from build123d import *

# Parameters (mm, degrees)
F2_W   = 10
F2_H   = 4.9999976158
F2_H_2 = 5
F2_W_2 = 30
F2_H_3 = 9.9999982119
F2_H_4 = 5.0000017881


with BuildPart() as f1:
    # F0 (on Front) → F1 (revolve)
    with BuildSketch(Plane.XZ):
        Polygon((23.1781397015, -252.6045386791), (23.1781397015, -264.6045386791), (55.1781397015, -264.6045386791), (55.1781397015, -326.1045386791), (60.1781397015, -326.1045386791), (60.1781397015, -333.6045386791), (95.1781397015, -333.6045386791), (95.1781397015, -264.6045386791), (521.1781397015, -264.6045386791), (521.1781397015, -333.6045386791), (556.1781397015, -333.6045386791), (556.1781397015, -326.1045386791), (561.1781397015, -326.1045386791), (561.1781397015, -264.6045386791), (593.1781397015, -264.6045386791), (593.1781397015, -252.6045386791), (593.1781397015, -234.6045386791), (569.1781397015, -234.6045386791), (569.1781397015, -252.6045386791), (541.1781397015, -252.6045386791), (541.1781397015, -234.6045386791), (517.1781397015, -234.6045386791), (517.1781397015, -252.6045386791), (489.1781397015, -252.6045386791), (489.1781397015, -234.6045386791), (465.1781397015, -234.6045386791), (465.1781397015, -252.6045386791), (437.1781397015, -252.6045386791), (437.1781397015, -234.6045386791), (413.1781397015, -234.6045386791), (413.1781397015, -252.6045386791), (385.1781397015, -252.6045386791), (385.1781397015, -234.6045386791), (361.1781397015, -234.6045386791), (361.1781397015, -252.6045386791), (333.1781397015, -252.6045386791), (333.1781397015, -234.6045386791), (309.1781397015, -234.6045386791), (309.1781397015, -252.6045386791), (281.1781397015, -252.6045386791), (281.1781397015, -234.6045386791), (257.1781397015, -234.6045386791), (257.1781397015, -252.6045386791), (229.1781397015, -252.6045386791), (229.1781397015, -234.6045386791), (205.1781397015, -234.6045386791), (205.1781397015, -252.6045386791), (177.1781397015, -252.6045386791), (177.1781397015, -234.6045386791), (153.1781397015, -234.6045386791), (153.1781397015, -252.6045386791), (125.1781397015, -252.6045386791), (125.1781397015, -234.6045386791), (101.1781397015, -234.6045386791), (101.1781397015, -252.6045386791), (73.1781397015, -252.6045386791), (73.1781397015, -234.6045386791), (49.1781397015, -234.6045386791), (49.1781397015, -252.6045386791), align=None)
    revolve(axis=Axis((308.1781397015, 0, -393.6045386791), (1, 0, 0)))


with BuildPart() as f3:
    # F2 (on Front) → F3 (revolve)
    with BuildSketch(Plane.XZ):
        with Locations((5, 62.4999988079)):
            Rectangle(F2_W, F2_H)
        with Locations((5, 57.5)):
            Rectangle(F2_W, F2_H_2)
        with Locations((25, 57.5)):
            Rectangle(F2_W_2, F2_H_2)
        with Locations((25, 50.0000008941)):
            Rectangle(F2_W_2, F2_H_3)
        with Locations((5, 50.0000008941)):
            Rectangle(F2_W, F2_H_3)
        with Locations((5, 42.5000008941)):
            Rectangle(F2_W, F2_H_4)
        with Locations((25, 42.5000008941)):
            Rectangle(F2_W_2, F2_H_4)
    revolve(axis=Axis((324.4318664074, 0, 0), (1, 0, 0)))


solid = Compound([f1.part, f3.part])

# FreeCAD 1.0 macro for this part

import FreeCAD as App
import Part
import Sketcher

V = App.Vector

doc = App.newDocument("Part")
body = doc.addObject("PartDesign::Body", "Body")

sketch1 = body.newObject("Sketcher::SketchObject", "Sketch")
sketch1.AttachmentSupport = (doc.getObject("XZ_Plane"), [""])
sketch1.MapMode = "FlatFace"
sketch1.addGeometry(Part.LineSegment(V(23.17814, -252.604539, 0), V(23.17814, -264.604539, 0)), False)
sketch1.addGeometry(Part.LineSegment(V(23.17814, -264.604539, 0), V(55.17814, -264.604539, 0)), False)
sketch1.addGeometry(Part.LineSegment(V(55.17814, -264.604539, 0), V(55.17814, -326.104539, 0)), False)
sketch1.addGeometry(Part.LineSegment(V(55.17814, -326.104539, 0), V(60.17814, -326.104539, 0)), False)
sketch1.addGeometry(Part.LineSegment(V(60.17814, -326.104539, 0), V(60.17814, -333.604539, 0)), False)
sketch1.addGeometry(Part.LineSegment(V(60.17814, -333.604539, 0), V(95.17814, -333.604539, 0)), False)
sketch1.addGeometry(Part.LineSegment(V(95.17814, -333.604539, 0), V(95.17814, -264.604539, 0)), False)
sketch1.addGeometry(Part.LineSegment(V(95.17814, -264.604539, 0), V(521.17814, -264.604539, 0)), False)
sketch1.addGeometry(Part.LineSegment(V(521.17814, -264.604539, 0), V(521.17814, -333.604539, 0)), False)
sketch1.addGeometry(Part.LineSegment(V(521.17814, -333.604539, 0), V(556.17814, -333.604539, 0)), False)
sketch1.addGeometry(Part.LineSegment(V(556.17814, -333.604539, 0), V(556.17814, -326.104539, 0)), False)
sketch1.addGeometry(Part.LineSegment(V(556.17814, -326.104539, 0), V(561.17814, -326.104539, 0)), False)
sketch1.addGeometry(Part.LineSegment(V(561.17814, -326.104539, 0), V(561.17814, -264.604539, 0)), False)
sketch1.addGeometry(Part.LineSegment(V(561.17814, -264.604539, 0), V(593.17814, -264.604539, 0)), False)
sketch1.addGeometry(Part.LineSegment(V(593.17814, -264.604539, 0), V(593.17814, -234.604539, 0)), False)
sketch1.addGeometry(Part.LineSegment(V(593.17814, -234.604539, 0), V(569.17814, -234.604539, 0)), False)
sketch1.addGeometry(Part.LineSegment(V(569.17814, -234.604539, 0), V(569.17814, -252.604539, 0)), False)
sketch1.addGeometry(Part.LineSegment(V(569.17814, -252.604539, 0), V(541.17814, -252.604539, 0)), False)
sketch1.addGeometry(Part.LineSegment(V(541.17814, -252.604539, 0), V(541.17814, -234.604539, 0)), False)
sketch1.addGeometry(Part.LineSegment(V(541.17814, -234.604539, 0), V(517.17814, -234.604539, 0)), False)
sketch1.addGeometry(Part.LineSegment(V(517.17814, -234.604539, 0), V(517.17814, -252.604539, 0)), False)
sketch1.addGeometry(Part.LineSegment(V(517.17814, -252.604539, 0), V(489.17814, -252.604539, 0)), False)
sketch1.addGeometry(Part.LineSegment(V(489.17814, -252.604539, 0), V(489.17814, -234.604539, 0)), False)
sketch1.addGeometry(Part.LineSegment(V(489.17814, -234.604539, 0), V(465.17814, -234.604539, 0)), False)
sketch1.addGeometry(Part.LineSegment(V(465.17814, -234.604539, 0), V(465.17814, -252.604539, 0)), False)
sketch1.addGeometry(Part.LineSegment(V(465.17814, -252.604539, 0), V(437.17814, -252.604539, 0)), False)
sketch1.addGeometry(Part.LineSegment(V(437.17814, -252.604539, 0), V(437.17814, -234.604539, 0)), False)
sketch1.addGeometry(Part.LineSegment(V(437.17814, -234.604539, 0), V(413.17814, -234.604539, 0)), False)
sketch1.addGeometry(Part.LineSegment(V(413.17814, -234.604539, 0), V(413.17814, -252.604539, 0)), False)
sketch1.addGeometry(Part.LineSegment(V(413.17814, -252.604539, 0), V(385.17814, -252.604539, 0)), False)
sketch1.addGeometry(Part.LineSegment(V(385.17814, -252.604539, 0), V(385.17814, -234.604539, 0)), False)
sketch1.addGeometry(Part.LineSegment(V(385.17814, -234.604539, 0), V(361.17814, -234.604539, 0)), False)
sketch1.addGeometry(Part.LineSegment(V(361.17814, -234.604539, 0), V(361.17814, -252.604539, 0)), False)
sketch1.addGeometry(Part.LineSegment(V(361.17814, -252.604539, 0), V(333.17814, -252.604539, 0)), False)
sketch1.addGeometry(Part.LineSegment(V(333.17814, -252.604539, 0), V(333.17814, -234.604539, 0)), False)
sketch1.addGeometry(Part.LineSegment(V(333.17814, -234.604539, 0), V(309.17814, -234.604539, 0)), False)
sketch1.addGeometry(Part.LineSegment(V(309.17814, -234.604539, 0), V(309.17814, -252.604539, 0)), False)
sketch1.addGeometry(Part.LineSegment(V(309.17814, -252.604539, 0), V(281.17814, -252.604539, 0)), False)
sketch1.addGeometry(Part.LineSegment(V(281.17814, -252.604539, 0), V(281.17814, -234.604539, 0)), False)
sketch1.addGeometry(Part.LineSegment(V(281.17814, -234.604539, 0), V(257.17814, -234.604539, 0)), False)
sketch1.addGeometry(Part.LineSegment(V(257.17814, -234.604539, 0), V(257.17814, -252.604539, 0)), False)
sketch1.addGeometry(Part.LineSegment(V(257.17814, -252.604539, 0), V(229.17814, -252.604539, 0)), False)
sketch1.addGeometry(Part.LineSegment(V(229.17814, -252.604539, 0), V(229.17814, -234.604539, 0)), False)
sketch1.addGeometry(Part.LineSegment(V(229.17814, -234.604539, 0), V(205.17814, -234.604539, 0)), False)
sketch1.addGeometry(Part.LineSegment(V(205.17814, -234.604539, 0), V(205.17814, -252.604539, 0)), False)
sketch1.addGeometry(Part.LineSegment(V(205.17814, -252.604539, 0), V(177.17814, -252.604539, 0)), False)
sketch1.addGeometry(Part.LineSegment(V(177.17814, -252.604539, 0), V(177.17814, -234.604539, 0)), False)
sketch1.addGeometry(Part.LineSegment(V(177.17814, -234.604539, 0), V(153.17814, -234.604539, 0)), False)
sketch1.addGeometry(Part.LineSegment(V(153.17814, -234.604539, 0), V(153.17814, -252.604539, 0)), False)
sketch1.addGeometry(Part.LineSegment(V(153.17814, -252.604539, 0), V(125.17814, -252.604539, 0)), False)
sketch1.addGeometry(Part.LineSegment(V(125.17814, -252.604539, 0), V(125.17814, -234.604539, 0)), False)
sketch1.addGeometry(Part.LineSegment(V(125.17814, -234.604539, 0), V(101.17814, -234.604539, 0)), False)
sketch1.addGeometry(Part.LineSegment(V(101.17814, -234.604539, 0), V(101.17814, -252.604539, 0)), False)
sketch1.addGeometry(Part.LineSegment(V(101.17814, -252.604539, 0), V(73.17814, -252.604539, 0)), False)
sketch1.addGeometry(Part.LineSegment(V(73.17814, -252.604539, 0), V(73.17814, -234.604539, 0)), False)
sketch1.addGeometry(Part.LineSegment(V(73.17814, -234.604539, 0), V(49.17814, -234.604539, 0)), False)
sketch1.addGeometry(Part.LineSegment(V(49.17814, -234.604539, 0), V(49.17814, -252.604539, 0)), False)
sketch1.addGeometry(Part.LineSegment(V(49.17814, -252.604539, 0), V(23.17814, -252.604539, 0)), False)
sketch1.addGeometry(Part.LineSegment(V(23.17814, -393.604539, 0), V(593.17814, -393.604539, 0)), True)
sketch1.addConstraint(Sketcher.Constraint("Coincident", 0, 2, 1, 1))
sketch1.addConstraint(Sketcher.Constraint("Coincident", 1, 2, 2, 1))
sketch1.addConstraint(Sketcher.Constraint("Coincident", 2, 2, 3, 1))
sketch1.addConstraint(Sketcher.Constraint("Coincident", 3, 2, 4, 1))
sketch1.addConstraint(Sketcher.Constraint("Coincident", 4, 2, 5, 1))
sketch1.addConstraint(Sketcher.Constraint("Coincident", 5, 2, 6, 1))
sketch1.addConstraint(Sketcher.Constraint("Coincident", 6, 2, 7, 1))
sketch1.addConstraint(Sketcher.Constraint("Coincident", 7, 2, 8, 1))
sketch1.addConstraint(Sketcher.Constraint("Coincident", 8, 2, 9, 1))
sketch1.addConstraint(Sketcher.Constraint("Coincident", 9, 2, 10, 1))
sketch1.addConstraint(Sketcher.Constraint("Coincident", 10, 2, 11, 1))
sketch1.addConstraint(Sketcher.Constraint("Coincident", 11, 2, 12, 1))
sketch1.addConstraint(Sketcher.Constraint("Coincident", 12, 2, 13, 1))
sketch1.addConstraint(Sketcher.Constraint("Coincident", 13, 2, 14, 1))
sketch1.addConstraint(Sketcher.Constraint("Coincident", 14, 2, 15, 1))
sketch1.addConstraint(Sketcher.Constraint("Coincident", 15, 2, 16, 1))
sketch1.addConstraint(Sketcher.Constraint("Coincident", 16, 2, 17, 1))
sketch1.addConstraint(Sketcher.Constraint("Coincident", 17, 2, 18, 1))
sketch1.addConstraint(Sketcher.Constraint("Coincident", 18, 2, 19, 1))
sketch1.addConstraint(Sketcher.Constraint("Coincident", 19, 2, 20, 1))
sketch1.addConstraint(Sketcher.Constraint("Coincident", 20, 2, 21, 1))
sketch1.addConstraint(Sketcher.Constraint("Coincident", 21, 2, 22, 1))
sketch1.addConstraint(Sketcher.Constraint("Coincident", 22, 2, 23, 1))
sketch1.addConstraint(Sketcher.Constraint("Coincident", 23, 2, 24, 1))
sketch1.addConstraint(Sketcher.Constraint("Coincident", 24, 2, 25, 1))
sketch1.addConstraint(Sketcher.Constraint("Coincident", 25, 2, 26, 1))
sketch1.addConstraint(Sketcher.Constraint("Coincident", 26, 2, 27, 1))
sketch1.addConstraint(Sketcher.Constraint("Coincident", 27, 2, 28, 1))
sketch1.addConstraint(Sketcher.Constraint("Coincident", 28, 2, 29, 1))
sketch1.addConstraint(Sketcher.Constraint("Coincident", 29, 2, 30, 1))
sketch1.addConstraint(Sketcher.Constraint("Coincident", 30, 2, 31, 1))
sketch1.addConstraint(Sketcher.Constraint("Coincident", 31, 2, 32, 1))
sketch1.addConstraint(Sketcher.Constraint("Coincident", 32, 2, 33, 1))
sketch1.addConstraint(Sketcher.Constraint("Coincident", 33, 2, 34, 1))
sketch1.addConstraint(Sketcher.Constraint("Coincident", 34, 2, 35, 1))
sketch1.addConstraint(Sketcher.Constraint("Coincident", 35, 2, 36, 1))
sketch1.addConstraint(Sketcher.Constraint("Coincident", 36, 2, 37, 1))
sketch1.addConstraint(Sketcher.Constraint("Coincident", 37, 2, 38, 1))
sketch1.addConstraint(Sketcher.Constraint("Coincident", 38, 2, 39, 1))
sketch1.addConstraint(Sketcher.Constraint("Coincident", 39, 2, 40, 1))
sketch1.addConstraint(Sketcher.Constraint("Coincident", 40, 2, 41, 1))
sketch1.addConstraint(Sketcher.Constraint("Coincident", 41, 2, 42, 1))
sketch1.addConstraint(Sketcher.Constraint("Coincident", 42, 2, 43, 1))
sketch1.addConstraint(Sketcher.Constraint("Coincident", 43, 2, 44, 1))
sketch1.addConstraint(Sketcher.Constraint("Coincident", 44, 2, 45, 1))
sketch1.addConstraint(Sketcher.Constraint("Coincident", 45, 2, 46, 1))
sketch1.addConstraint(Sketcher.Constraint("Coincident", 46, 2, 47, 1))
sketch1.addConstraint(Sketcher.Constraint("Coincident", 47, 2, 48, 1))
sketch1.addConstraint(Sketcher.Constraint("Coincident", 48, 2, 49, 1))
sketch1.addConstraint(Sketcher.Constraint("Coincident", 49, 2, 50, 1))
sketch1.addConstraint(Sketcher.Constraint("Coincident", 50, 2, 51, 1))
sketch1.addConstraint(Sketcher.Constraint("Coincident", 51, 2, 52, 1))
sketch1.addConstraint(Sketcher.Constraint("Coincident", 52, 2, 53, 1))
sketch1.addConstraint(Sketcher.Constraint("Coincident", 53, 2, 54, 1))
sketch1.addConstraint(Sketcher.Constraint("Coincident", 54, 2, 55, 1))
sketch1.addConstraint(Sketcher.Constraint("Coincident", 55, 2, 56, 1))
sketch1.addConstraint(Sketcher.Constraint("Coincident", 56, 2, 57, 1))
sketch1.addConstraint(Sketcher.Constraint("Coincident", 57, 2, 0, 1))
sketch1.addConstraint(Sketcher.Constraint("Vertical", 0))
sketch1.addConstraint(Sketcher.Constraint("Horizontal", 1))
sketch1.addConstraint(Sketcher.Constraint("Vertical", 2))
sketch1.addConstraint(Sketcher.Constraint("Horizontal", 3))
sketch1.addConstraint(Sketcher.Constraint("Vertical", 4))
sketch1.addConstraint(Sketcher.Constraint("Horizontal", 5))
sketch1.addConstraint(Sketcher.Constraint("Vertical", 6))
sketch1.addConstraint(Sketcher.Constraint("Horizontal", 7))
sketch1.addConstraint(Sketcher.Constraint("Vertical", 8))
sketch1.addConstraint(Sketcher.Constraint("Horizontal", 9))
sketch1.addConstraint(Sketcher.Constraint("Vertical", 10))
sketch1.addConstraint(Sketcher.Constraint("Horizontal", 11))
sketch1.addConstraint(Sketcher.Constraint("Vertical", 12))
sketch1.addConstraint(Sketcher.Constraint("Horizontal", 13))
sketch1.addConstraint(Sketcher.Constraint("Vertical", 14))
sketch1.addConstraint(Sketcher.Constraint("Horizontal", 15))
sketch1.addConstraint(Sketcher.Constraint("Vertical", 16))
sketch1.addConstraint(Sketcher.Constraint("Horizontal", 17))
sketch1.addConstraint(Sketcher.Constraint("Vertical", 18))
sketch1.addConstraint(Sketcher.Constraint("Horizontal", 19))
sketch1.addConstraint(Sketcher.Constraint("Vertical", 20))
sketch1.addConstraint(Sketcher.Constraint("Horizontal", 21))
sketch1.addConstraint(Sketcher.Constraint("Vertical", 22))
sketch1.addConstraint(Sketcher.Constraint("Horizontal", 23))
sketch1.addConstraint(Sketcher.Constraint("Vertical", 24))
sketch1.addConstraint(Sketcher.Constraint("Horizontal", 25))
sketch1.addConstraint(Sketcher.Constraint("Vertical", 26))
sketch1.addConstraint(Sketcher.Constraint("Horizontal", 27))
sketch1.addConstraint(Sketcher.Constraint("Vertical", 28))
sketch1.addConstraint(Sketcher.Constraint("Horizontal", 29))
sketch1.addConstraint(Sketcher.Constraint("Vertical", 30))
sketch1.addConstraint(Sketcher.Constraint("Horizontal", 31))
sketch1.addConstraint(Sketcher.Constraint("Vertical", 32))
sketch1.addConstraint(Sketcher.Constraint("Horizontal", 33))
sketch1.addConstraint(Sketcher.Constraint("Vertical", 34))
sketch1.addConstraint(Sketcher.Constraint("Horizontal", 35))
sketch1.addConstraint(Sketcher.Constraint("Vertical", 36))
sketch1.addConstraint(Sketcher.Constraint("Horizontal", 37))
sketch1.addConstraint(Sketcher.Constraint("Vertical", 38))
sketch1.addConstraint(Sketcher.Constraint("Horizontal", 39))
sketch1.addConstraint(Sketcher.Constraint("Vertical", 40))
sketch1.addConstraint(Sketcher.Constraint("Horizontal", 41))
sketch1.addConstraint(Sketcher.Constraint("Vertical", 42))
sketch1.addConstraint(Sketcher.Constraint("Horizontal", 43))
sketch1.addConstraint(Sketcher.Constraint("Vertical", 44))
sketch1.addConstraint(Sketcher.Constraint("Horizontal", 45))
sketch1.addConstraint(Sketcher.Constraint("Vertical", 46))
sketch1.addConstraint(Sketcher.Constraint("Horizontal", 47))
sketch1.addConstraint(Sketcher.Constraint("Vertical", 48))
sketch1.addConstraint(Sketcher.Constraint("Horizontal", 49))
sketch1.addConstraint(Sketcher.Constraint("Vertical", 50))
sketch1.addConstraint(Sketcher.Constraint("Horizontal", 51))
sketch1.addConstraint(Sketcher.Constraint("Vertical", 52))
sketch1.addConstraint(Sketcher.Constraint("Horizontal", 53))
sketch1.addConstraint(Sketcher.Constraint("Vertical", 54))
sketch1.addConstraint(Sketcher.Constraint("Horizontal", 55))
sketch1.addConstraint(Sketcher.Constraint("Vertical", 56))
sketch1.addConstraint(Sketcher.Constraint("Horizontal", 57))
sketch1.addConstraint(Sketcher.Constraint("Horizontal", 58))
sketch1.addConstraint(Sketcher.Constraint("Horizontal", 1, 2, 6, 2))
sketch1.addConstraint(Sketcher.Constraint("Horizontal", 5, 2, 8, 2))
sketch1.addConstraint(Sketcher.Constraint("Horizontal", 3, 2, 10, 2))
sketch1.addConstraint(Sketcher.Constraint("Horizontal", 7, 2, 12, 2))
sketch1.addConstraint(Sketcher.Constraint("Horizontal", 15, 2, 18, 2))
sketch1.addConstraint(Sketcher.Constraint("Horizontal", 17, 2, 20, 2))
sketch1.addConstraint(Sketcher.Constraint("Horizontal", 19, 2, 22, 2))
sketch1.addConstraint(Sketcher.Constraint("Horizontal", 21, 2, 24, 2))
sketch1.addConstraint(Sketcher.Constraint("Horizontal", 23, 2, 26, 2))
sketch1.addConstraint(Sketcher.Constraint("Horizontal", 25, 2, 28, 2))
sketch1.addConstraint(Sketcher.Constraint("Horizontal", 27, 2, 30, 2))
sketch1.addConstraint(Sketcher.Constraint("Horizontal", 29, 2, 32, 2))
sketch1.addConstraint(Sketcher.Constraint("Horizontal", 31, 2, 34, 2))
sketch1.addConstraint(Sketcher.Constraint("Horizontal", 33, 2, 36, 2))
sketch1.addConstraint(Sketcher.Constraint("Horizontal", 35, 2, 38, 2))
sketch1.addConstraint(Sketcher.Constraint("Horizontal", 37, 2, 40, 2))
sketch1.addConstraint(Sketcher.Constraint("Horizontal", 39, 2, 42, 2))
sketch1.addConstraint(Sketcher.Constraint("Horizontal", 41, 2, 44, 2))
sketch1.addConstraint(Sketcher.Constraint("Horizontal", 43, 2, 46, 2))
sketch1.addConstraint(Sketcher.Constraint("Horizontal", 45, 2, 48, 2))
sketch1.addConstraint(Sketcher.Constraint("Horizontal", 47, 2, 50, 2))
sketch1.addConstraint(Sketcher.Constraint("Horizontal", 49, 2, 52, 2))
sketch1.addConstraint(Sketcher.Constraint("Horizontal", 51, 2, 54, 2))
sketch1.addConstraint(Sketcher.Constraint("Horizontal", 53, 2, 56, 2))
sketch1.addConstraint(Sketcher.Constraint("Vertical", 57, 2, 58, 1))
sketch1.addConstraint(Sketcher.Constraint("Vertical", 14, 2, 58, 2))
sketch1.addConstraint(Sketcher.Constraint("Equal", 5, 9))
sketch1.addConstraint(Sketcher.Constraint("Equal", 3, 11))
sketch1.addConstraint(Sketcher.Constraint("Equal", 1, 13))
sketch1.addConstraint(Sketcher.Constraint("Equal", 15, 19))
sketch1.addConstraint(Sketcher.Constraint("Equal", 17, 21))
sketch1.addConstraint(Sketcher.Constraint("Equal", 19, 23))
sketch1.addConstraint(Sketcher.Constraint("Equal", 21, 25))
sketch1.addConstraint(Sketcher.Constraint("Equal", 23, 27))
sketch1.addConstraint(Sketcher.Constraint("Equal", 25, 29))
sketch1.addConstraint(Sketcher.Constraint("Equal", 27, 31))
sketch1.addConstraint(Sketcher.Constraint("Equal", 29, 33))
sketch1.addConstraint(Sketcher.Constraint("Equal", 31, 35))
sketch1.addConstraint(Sketcher.Constraint("Equal", 33, 37))
sketch1.addConstraint(Sketcher.Constraint("Equal", 35, 39))
sketch1.addConstraint(Sketcher.Constraint("Equal", 37, 41))
sketch1.addConstraint(Sketcher.Constraint("Equal", 39, 43))
sketch1.addConstraint(Sketcher.Constraint("Equal", 41, 45))
sketch1.addConstraint(Sketcher.Constraint("Equal", 43, 47))
sketch1.addConstraint(Sketcher.Constraint("Equal", 45, 49))
sketch1.addConstraint(Sketcher.Constraint("Equal", 47, 51))
sketch1.addConstraint(Sketcher.Constraint("Equal", 49, 53))
sketch1.addConstraint(Sketcher.Constraint("Equal", 51, 55))
sketch1.addConstraint(Sketcher.Constraint("DistanceX", 1, 1, 1, 2, 32.0))
sketch1.addConstraint(Sketcher.Constraint("DistanceX", 3, 1, 3, 2, 5.0))
sketch1.addConstraint(Sketcher.Constraint("DistanceX", 5, 1, 5, 2, 35.0))
sketch1.addConstraint(Sketcher.Constraint("DistanceX", 7, 1, 7, 2, 426.0))
sketch1.addConstraint(Sketcher.Constraint("DistanceX", 15, 2, 15, 1, 24.0))
sketch1.addConstraint(Sketcher.Constraint("DistanceX", 17, 2, 17, 1, 28.0))
sketch1.addConstraint(Sketcher.Constraint("DistanceY", 0, 2, 0, 1, 12.0))
sketch1.addConstraint(Sketcher.Constraint("DistanceY", 6, 1, 6, 2, 69.0))
sketch1.addConstraint(Sketcher.Constraint("DistanceY", 14, 1, 14, 2, 30.0))
sketch1.addConstraint(Sketcher.Constraint("DistanceY", 2, 2, 2, 1, 61.5))
sketch1.addConstraint(Sketcher.Constraint("DistanceY", 58, 1, 4, 2, 60.0))
sketch1.addConstraint(Sketcher.Constraint("DistanceX", -1, 1, 0, 2, 23.17814))
sketch1.addConstraint(Sketcher.Constraint("DistanceY", 0, 2, -1, 1, 264.604539))
revolution = body.newObject("PartDesign::Revolution", "Revolution")
revolution.Profile = sketch1
revolution.ReferenceAxis = (sketch1, ["Axis0"])
revolution.Angle = 360
body2 = doc.addObject("PartDesign::Body", "Body001")

sketch2 = body2.newObject("Sketcher::SketchObject", "Sketch001")
sketch2.AttachmentSupport = (doc.getObject("XZ_Plane001"), [""])
sketch2.MapMode = "FlatFace"
sketch2.addGeometry(Part.LineSegment(V(0, 64.999998, 0), V(0, 40, 0)), False)
sketch2.addGeometry(Part.LineSegment(V(0, 40, 0), V(40, 40, 0)), False)
sketch2.addGeometry(Part.LineSegment(V(40, 40, 0), V(40, 60, 0)), False)
sketch2.addGeometry(Part.LineSegment(V(40, 60, 0), V(10, 60, 0)), False)
sketch2.addGeometry(Part.LineSegment(V(10, 60, 0), V(10, 64.999998, 0)), False)
sketch2.addGeometry(Part.LineSegment(V(10, 64.999998, 0), V(0, 64.999998, 0)), False)
sketch2.addConstraint(Sketcher.Constraint("Coincident", 0, 2, 1, 1))
sketch2.addConstraint(Sketcher.Constraint("Coincident", 1, 2, 2, 1))
sketch2.addConstraint(Sketcher.Constraint("Coincident", 2, 2, 3, 1))
sketch2.addConstraint(Sketcher.Constraint("Coincident", 3, 2, 4, 1))
sketch2.addConstraint(Sketcher.Constraint("Coincident", 4, 2, 5, 1))
sketch2.addConstraint(Sketcher.Constraint("Coincident", 5, 2, 0, 1))
sketch2.addConstraint(Sketcher.Constraint("Vertical", 0))
sketch2.addConstraint(Sketcher.Constraint("Horizontal", 1))
sketch2.addConstraint(Sketcher.Constraint("Vertical", 2))
sketch2.addConstraint(Sketcher.Constraint("Horizontal", 3))
sketch2.addConstraint(Sketcher.Constraint("Vertical", 4))
sketch2.addConstraint(Sketcher.Constraint("Horizontal", 5))
sketch2.addConstraint(Sketcher.Constraint("PointOnObject", 0, 2, -2))
sketch2.addConstraint(Sketcher.Constraint("DistanceX", 1, 1, 1, 2, 40.0))
sketch2.addConstraint(Sketcher.Constraint("DistanceX", 3, 2, 3, 1, 30.0))
sketch2.addConstraint(Sketcher.Constraint("DistanceY", 2, 1, 2, 2, 20.0))
sketch2.addConstraint(Sketcher.Constraint("DistanceY", -1, 1, 0, 2, 40.0))
sketch2.addConstraint(Sketcher.Constraint("DistanceY", 0, 2, 0, 1, 24.999998))
revolution2 = body2.newObject("PartDesign::Revolution", "Revolution001")
revolution2.Profile = sketch2
revolution2.ReferenceAxis = (sketch2, ["H_Axis"])
revolution2.Angle = 360

doc.recompute()
